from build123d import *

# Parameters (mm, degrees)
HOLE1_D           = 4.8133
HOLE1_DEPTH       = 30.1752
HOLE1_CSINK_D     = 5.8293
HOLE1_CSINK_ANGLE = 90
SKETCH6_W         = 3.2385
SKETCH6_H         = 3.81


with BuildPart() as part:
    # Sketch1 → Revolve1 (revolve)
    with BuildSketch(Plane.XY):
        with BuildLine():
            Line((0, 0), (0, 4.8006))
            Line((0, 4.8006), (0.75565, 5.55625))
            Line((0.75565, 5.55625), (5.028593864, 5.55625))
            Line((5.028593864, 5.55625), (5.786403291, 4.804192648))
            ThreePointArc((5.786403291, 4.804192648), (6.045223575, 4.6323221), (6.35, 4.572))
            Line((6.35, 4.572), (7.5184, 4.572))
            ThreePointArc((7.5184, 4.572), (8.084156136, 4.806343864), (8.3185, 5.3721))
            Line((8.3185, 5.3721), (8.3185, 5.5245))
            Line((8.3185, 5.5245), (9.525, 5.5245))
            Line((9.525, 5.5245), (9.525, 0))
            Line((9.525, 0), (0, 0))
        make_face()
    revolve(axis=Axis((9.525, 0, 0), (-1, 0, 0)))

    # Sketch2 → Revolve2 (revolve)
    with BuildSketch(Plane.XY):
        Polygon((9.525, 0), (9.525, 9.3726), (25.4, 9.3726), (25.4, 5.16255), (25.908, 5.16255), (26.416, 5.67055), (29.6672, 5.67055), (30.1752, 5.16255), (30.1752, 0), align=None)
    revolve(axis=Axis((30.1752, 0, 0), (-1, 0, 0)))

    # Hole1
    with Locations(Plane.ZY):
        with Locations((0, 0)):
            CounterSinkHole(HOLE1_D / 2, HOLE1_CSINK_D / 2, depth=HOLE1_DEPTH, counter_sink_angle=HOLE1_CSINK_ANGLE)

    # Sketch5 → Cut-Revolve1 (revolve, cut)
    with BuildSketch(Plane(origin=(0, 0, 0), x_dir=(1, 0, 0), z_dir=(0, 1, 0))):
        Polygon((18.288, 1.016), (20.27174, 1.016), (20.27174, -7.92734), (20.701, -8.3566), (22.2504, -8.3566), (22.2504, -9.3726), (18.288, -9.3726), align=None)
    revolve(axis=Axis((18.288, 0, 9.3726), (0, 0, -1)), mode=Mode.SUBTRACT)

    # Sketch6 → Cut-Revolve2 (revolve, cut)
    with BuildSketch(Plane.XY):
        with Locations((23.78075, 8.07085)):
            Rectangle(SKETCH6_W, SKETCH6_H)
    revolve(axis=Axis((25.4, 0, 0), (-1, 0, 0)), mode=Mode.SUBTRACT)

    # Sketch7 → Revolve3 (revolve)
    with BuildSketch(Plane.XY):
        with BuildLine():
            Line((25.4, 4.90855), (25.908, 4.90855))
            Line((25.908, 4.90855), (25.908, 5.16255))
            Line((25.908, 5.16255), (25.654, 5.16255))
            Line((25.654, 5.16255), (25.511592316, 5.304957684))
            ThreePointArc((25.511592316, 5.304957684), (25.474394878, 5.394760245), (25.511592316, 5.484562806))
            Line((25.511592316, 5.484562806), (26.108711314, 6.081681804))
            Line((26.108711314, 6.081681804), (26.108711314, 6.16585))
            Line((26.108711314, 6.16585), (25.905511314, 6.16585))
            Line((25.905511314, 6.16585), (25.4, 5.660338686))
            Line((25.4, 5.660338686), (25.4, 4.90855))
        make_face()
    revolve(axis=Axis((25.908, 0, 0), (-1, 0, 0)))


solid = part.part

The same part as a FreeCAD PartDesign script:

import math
import FreeCAD as App
import Part
import Sketcher
Q = App.Units.Quantity


def add_polygon(sketch, points):
    """Adds a closed chain of lines whose ends are joined by coincident constraints."""
    first, n = sketch.GeometryCount, len(points)
    for a, b in zip(points, points[1:] + points[:1]):
        sketch.addGeometry(Part.LineSegment(App.Vector(*a, 0), App.Vector(*b, 0)), False)
    for i in range(n):
        sketch.addConstraint(Sketcher.Constraint("Coincident", first + i, 2, first + (i + 1) % n, 1))

doc = App.newDocument("Part")
body = doc.addObject("PartDesign::Body", "Body")

sketch1 = body.newObject("Sketcher::SketchObject", "Sketch")
sketch1.AttachmentSupport = (doc.getObject("XY_Plane"), [""])
sketch1.MapMode = "FlatFace"
sketch1.addGeometry(Part.LineSegment(App.Vector(0, 4.8, 0), App.Vector(0, 0, 0)), False)
sketch1.addGeometry(Part.LineSegment(App.Vector(0, 0, 0), App.Vector(9.53, 0, 0)), False)
sketch1.addGeometry(Part.LineSegment(App.Vector(9.53, 0, 0), App.Vector(9.53, 5.52, 0)), False)
sketch1.addGeometry(Part.LineSegment(App.Vector(9.53, 5.52, 0), App.Vector(8.32, 5.52, 0)), False)
sketch1.addGeometry(Part.LineSegment(App.Vector(8.32, 5.52, 0), App.Vector(8.32, 5.37, 0)), False)
sketch1.addGeometry(Part.ArcOfCircle(Part.Circle(App.Vector(7.52, 5.37, 0), App.Vector(0, 0, 1), 0.8), math.radians(-90), math.radians(0)), False)
sketch1.addGeometry(Part.LineSegment(App.Vector(7.52, 4.57, 0), App.Vector(6.35, 4.57, 0)), False)
sketch1.addGeometry(Part.ArcOfCircle(Part.Circle(App.Vector(6.35, 5.37, 0), App.Vector(0, 0, 1), 0.8), math.radians(-135), math.radians(-90)), False)
sketch1.addGeometry(Part.LineSegment(App.Vector(5.79, 4.8, 0), App.Vector(5.03, 5.56, 0)), False)
sketch1.addGeometry(Part.LineSegment(App.Vector(5.03, 5.56, 0), App.Vector(0.76, 5.56, 0)), False)
sketch1.addGeometry(Part.LineSegment(App.Vector(0.76, 5.56, 0), App.Vector(0, 4.8, 0)), False)
sketch1.addConstraint(Sketcher.Constraint("Coincident", 0, 2, 1, 1))
sketch1.addConstraint(Sketcher.Constraint("Coincident", 1, 2, 2, 1))
sketch1.addConstraint(Sketcher.Constraint("Coincident", 2, 2, 3, 1))
sketch1.addConstraint(Sketcher.Constraint("Coincident", 3, 2, 4, 1))
sketch1.addConstraint(Sketcher.Constraint("Tangent", 4, 2, 5, 2))
sketch1.addConstraint(Sketcher.Constraint("Tangent", 5, 1, 6, 1))
sketch1.addConstraint(Sketcher.Constraint("Tangent", 6, 2, 7, 2))
sketch1.addConstraint(Sketcher.Constraint("Tangent", 7, 1, 8, 1))
sketch1.addConstraint(Sketcher.Constraint("Coincident", 8, 2, 9, 1))
sketch1.addConstraint(Sketcher.Constraint("Coincident", 9, 2, 10, 1))
sketch1.addConstraint(Sketcher.Constraint("Coincident", 10, 2, 0, 1))
sketch1.addConstraint(Sketcher.Constraint("Vertical", 0))
sketch1.addConstraint(Sketcher.Constraint("Horizontal", 1))
sketch1.addConstraint(Sketcher.Constraint("Vertical", 2))
sketch1.addConstraint(Sketcher.Constraint("Horizontal", 3))
sketch1.addConstraint(Sketcher.Constraint("Vertical", 4))
sketch1.addConstraint(Sketcher.Constraint("Horizontal", 6))
sketch1.addConstraint(Sketcher.Constraint("Horizontal", 9))
sketch1.addConstraint(Sketcher.Constraint("Coincident", 0, 2, -1, 1))
sketch1.addConstraint(Sketcher.Constraint("Equal", 5, 7))
sketch1.addConstraint(Sketcher.Constraint("Angle", 10, Q("-135 deg")))
sketch1.addConstraint(Sketcher.Constraint("Radius", 5, Q("0.0315 in")))
sketch1.addConstraint(Sketcher.Constraint("DistanceX", 1, 1, 1, 2, Q("0.375 in")))
sketch1.addConstraint(Sketcher.Constraint("DistanceX", 6, 2, 6, 1, Q("0.046 in")))
sketch1.addConstraint(Sketcher.Constraint("DistanceY", 0, 2, 0, 1, Q("0.189 in")))
sketch1.addConstraint(Sketcher.Constraint("DistanceY", 4, 2, 4, 1, Q("0.006 in")))
sketch1.addConstraint(Sketcher.Constraint("DistanceX", -1, 1, 7, 3, Q("0.25 in")))
sketch1.addConstraint(Sketcher.Constraint("DistanceY", -1, 1, 5, 1, Q("0.18 in")))
sketch1.addConstraint(Sketcher.Constraint("DistanceY", -1, 1, 8, 2, Q("0.21875 in")))
sketch1.addConstraint(Sketcher.Constraint("DistanceX", 9, 2, 9, 1, 4.272944))
revolution = body.newObject("PartDesign::Revolution", "Revolution")
revolution.Profile = sketch1
revolution.ReferenceAxis = (sketch1, ["H_Axis"])
revolution.Angle = 360

sketch2 = body.newObject("Sketcher::SketchObject", "Sketch001")
sketch2.AttachmentSupport = (doc.getObject("XY_Plane"), [""])
sketch2.MapMode = "FlatFace"
add_polygon(sketch2, [(9.5, 9.4), (9.5, 0), (30.2, 0), (30.2, 5.2), (29.7, 5.7), (26.4, 5.7), (25.9, 5.2), (25.4, 5.2), (25.4, 9.4)])
sketch2.addConstraint(Sketcher.Constraint("Vertical", 0))
sketch2.addConstraint(Sketcher.Constraint("Horizontal", 1))
sketch2.addConstraint(Sketcher.Constraint("Vertical", 2))
sketch2.addConstraint(Sketcher.Constraint("Horizontal", 4))
sketch2.addConstraint(Sketcher.Constraint("Horizontal", 6))
sketch2.addConstraint(Sketcher.Constraint("Vertical", 7))
sketch2.addConstraint(Sketcher.Constraint("Horizontal", 8))
sketch2.addConstraint(Sketcher.Constraint("PointOnObject", 0, 2, -1))
sketch2.addConstraint(Sketcher.Constraint("Perpendicular", 3, 5))
sketch2.addConstraint(Sketcher.Constraint("Horizontal", 2, 2, 5, 2))
sketch2.addConstraint(Sketcher.Constraint("Equal", 3, 5))
sketch2.addConstraint(Sketcher.Constraint("DistanceX", -1, 1, 6, 2, Q("1 in")))
sketch2.addConstraint(Sketcher.Constraint("DistanceX", 6, 2, 6, 1, Q("0.02 in")))
sketch2.addConstraint(Sketcher.Constraint("DistanceX", 1, 1, 1, 2, Q("0.813 in")))
sketch2.addConstraint(Sketcher.Constraint("DistanceX", 4, 2, 4, 1, Q("0.128 in")))
sketch2.addConstraint(Sketcher.Constraint("DistanceX", 8, 2, 8, 1, Q("0.625 in")))
sketch2.addConstraint(Sketcher.Constraint("DistanceY", 0, 2, 0, 1, Q("0.369 in")))
sketch2.addConstraint(Sketcher.Constraint("DistanceY", 2, 1, 2, 2, 5.16255))
revolution2 = body.newObject("PartDesign::Revolution", "Revolution001")
revolution2.Profile = sketch2
revolution2.ReferenceAxis = (sketch2, ["H_Axis"])
revolution2.Angle = 360

sketch3 = body.newObject("Sketcher::SketchObject", "Sketch002")
sketch3.AttachmentSupport = (doc.getObject("YZ_Plane"), [""])
sketch3.MapMode = "FlatFace"
sketch3.addGeometry(Part.Circle(App.Vector(0, 0, 0), App.Vector(0, 0, 1), 2.4), False)
sketch3.addConstraint(Sketcher.Constraint("Coincident", 0, 3, -1, 1))
sketch3.addConstraint(Sketcher.Constraint("Diameter", 0, Q("0.1895 in")))
doc.recompute()
hole = body.newObject("PartDesign::Hole", "Hole")
hole.Profile = sketch3
hole.ThreadType = "None"
hole.Diameter = Q("0.1895 in")
hole.DepthType = "Dimension"
hole.Depth = Q("1.188 in")
hole.DrillPoint = "Flat"
hole.HoleCutType = "Countersink"
hole.HoleCutDiameter = Q("0.2295 in")
hole.HoleCutCountersinkAngle = 90
hole.Reversed = True

sketch4 = body.newObject("Sketcher::SketchObject", "Sketch003")
sketch4.AttachmentSupport = (doc.getObject("XZ_Plane"), [""])
sketch4.MapMode = "FlatFace"
add_polygon(sketch4, [(20.3, -1), (18.3, -1), (18.3, 9.4), (22.3, 9.4), (22.3, 8.4), (20.7, 8.4), (20.3, 7.9)])
sketch4.addGeometry(Part.LineSegment(App.Vector(18.3, 9.4, 0), App.Vector(18.3, -1, 0)), True)
sketch4.addConstraint(Sketcher.Constraint("Horizontal", 0))
sketch4.addConstraint(Sketcher.Constraint("Vertical", 1))
sketch4.addConstraint(Sketcher.Constraint("Horizontal", 2))
sketch4.addConstraint(Sketcher.Constraint("Vertical", 3))
sketch4.addConstraint(Sketcher.Constraint("Horizontal", 4))
sketch4.addConstraint(Sketcher.Constraint("Vertical", 6))
sketch4.addConstraint(Sketcher.Constraint("Vertical", 7))
sketch4.addConstraint(Sketcher.Constraint("Coincident", 7, 1, 1, 2))
sketch4.addConstraint(Sketcher.Constraint("Horizontal", 6, 2, 7, 2))
sketch4.addConstraint(Sketcher.Constraint("Angle", 5, Q("-135 deg")))
sketch4.addConstraint(Sketcher.Constraint("DistanceY", 3, 2, 3, 1, Q("0.04 in")))
sketch4.addConstraint(Sketcher.Constraint("DistanceX", 2, 1, 2, 2, Q("0.156 in")))
sketch4.addConstraint(Sketcher.Constraint("DistanceX", 4, 2, 4, 1, Q("0.061 in")))
sketch4.addConstraint(Sketcher.Constraint("DistanceY", 1, 1, 1, 2, Q("0.409 in")))
sketch4.addConstraint(Sketcher.Constraint("DistanceX", -1, 1, 0, 2, Q("0.72 in")))
sketch4.addConstraint(Sketcher.Constraint("DistanceY", 0, 2, -1, 1, Q("0.04 in")))
sketch4.addConstraint(Sketcher.Constraint("DistanceX", 0, 2, 0, 1, Q("0.0781 in")))
groove = body.newObject("PartDesign::Groove", "Groove")
groove.Profile = sketch4
groove.ReferenceAxis = (sketch4, ["Axis0"])
groove.Angle = 360

sketch5 = body.newObject("Sketcher::SketchObject", "Sketch004")
sketch5.AttachmentSupport = (doc.getObject("XY_Plane"), [""])
sketch5.MapMode = "FlatFace"
add_polygon(sketch5, [(22.2, 10), (22.2, 6.2), (25.4, 6.2), (25.4, 10)])
sketch5.addConstraint(Sketcher.Constraint("Vertical", 0))
sketch5.addConstraint(Sketcher.Constraint("Horizontal", 1))
sketch5.addConstraint(Sketcher.Constraint("Vertical", 2))
sketch5.addConstraint(Sketcher.Constraint("Horizontal", 3))
sketch5.addConstraint(Sketcher.Constraint("DistanceX", -1, 1, 1, 2, Q("1 in")))
sketch5.addConstraint(Sketcher.Constraint("DistanceY", 0, 2, 0, 1, Q("0.15 in")))
sketch5.addConstraint(Sketcher.Constraint("DistanceX", 1, 1, 1, 2, Q("0.1275 in")))
sketch5.addConstraint(Sketcher.Constraint("DistanceY", -1, 1, 0, 2, 6.16585))
groove2 = body.newObject("PartDesign::Groove", "Groove001")
groove2.Profile = sketch5
groove2.ReferenceAxis = (sketch5, ["H_Axis"])
groove2.Angle = 360

sketch6 = body.newObject("Sketcher::SketchObject", "Sketch005")
sketch6.AttachmentSupport = (doc.getObject("XY_Plane"), [""])
sketch6.MapMode = "FlatFace"
sketch6.addGeometry(Part.LineSegment(App.Vector(25.4, 4.91, 0), App.Vector(25.91, 4.91, 0)), False)
sketch6.addGeometry(Part.LineSegment(App.Vector(25.91, 4.91, 0), App.Vector(25.91, 5.16, 0)), False)
sketch6.addGeometry(Part.LineSegment(App.Vector(25.91, 5.16, 0), App.Vector(25.65, 5.16, 0)), False)
sketch6.addGeometry(Part.LineSegment(App.Vector(25.65, 5.16, 0), App.Vector(25.51, 5.3, 0)), False)
sketch6.addGeometry(Part.ArcOfCircle(Part.Circle(App.Vector(25.6, 5.39, 0), App.Vector(0, 0, 1), 0.13), math.radians(135), math.radians(225)), False)
sketch6.addGeometry(Part.LineSegment(App.Vector(25.51, 5.48, 0), App.Vector(26.11, 6.08, 0)), False)
sketch6.addGeometry(Part.LineSegment(App.Vector(26.11, 6.08, 0), App.Vector(26.11, 6.17, 0)), False)
sketch6.addGeometry(Part.LineSegment(App.Vector(26.11, 6.17, 0), App.Vector(25.91, 6.17, 0)), False)
sketch6.addGeometry(Part.LineSegment(App.Vector(25.91, 6.17, 0), App.Vector(25.4, 5.66, 0)), False)
sketch6.addGeometry(Part.LineSegment(App.Vector(25.4, 5.66, 0), App.Vector(25.4, 4.91, 0)), False)
sketch6.addConstraint(Sketcher.Constraint("Coincident", 0, 2, 1, 1))
sketch6.addConstraint(Sketcher.Constraint("Coincident", 1, 2, 2, 1))
sketch6.addConstraint(Sketcher.Constraint("Coincident", 2, 2, 3, 1))
sketch6.addConstraint(Sketcher.Constraint("Tangent", 3, 2, 4, 2))
sketch6.addConstraint(Sketcher.Constraint("Tangent", 4, 1, 5, 1))
sketch6.addConstraint(Sketcher.Constraint("Coincident", 5, 2, 6, 1))
sketch6.addConstraint(Sketcher.Constraint("Coincident", 6, 2, 7, 1))
sketch6.addConstraint(Sketcher.Constraint("Coincident", 7, 2, 8, 1))
sketch6.addConstraint(Sketcher.Constraint("Coincident", 8, 2, 9, 1))
sketch6.addConstraint(Sketcher.Constraint("Coincident", 9, 2, 0, 1))
sketch6.addConstraint(Sketcher.Constraint("Horizontal", 0))
sketch6.addConstraint(Sketcher.Constraint("Vertical", 1))
sketch6.addConstraint(Sketcher.Constraint("Horizontal", 2))
sketch6.addConstraint(Sketcher.Constraint("Vertical", 6))
sketch6.addConstraint(Sketcher.Constraint("Horizontal", 7))
sketch6.addConstraint(Sketcher.Constraint("Vertical", 9))
sketch6.addConstraint(Sketcher.Constraint("Perpendicular", 3, 5))
sketch6.addConstraint(Sketcher.Constraint("Parallel", 5, 8))
sketch6.addConstraint(Sketcher.Constraint("Vertical", 3, 2, 4, 1))
sketch6.addConstraint(Sketcher.Constraint("Equal", 2, 1))
sketch6.addConstraint(Sketcher.Constraint("DistanceX", -1, 1, 8, 2, Q("1 in")))
sketch6.addConstraint(Sketcher.Constraint("Radius", 4, Q("0.005 in")))
sketch6.addConstraint(Sketcher.Constraint("DistanceX", 0, 1, 0, 2, Q("0.02 in")))
sketch6.addConstraint(Sketcher.Constraint("DistanceX", 2, 2, 2, 1, Q("0.01 in")))
sketch6.addConstraint(Sketcher.Constraint("DistanceX", 7, 2, 7, 1, Q("0.008 in")))
sketch6.addConstraint(Sketcher.Constraint("DistanceY", 1, 2, 6, 2, Q("0.0395 in")))
sketch6.addConstraint(Sketcher.Constraint("Distance", 8, 0.714901))
sketch6.addConstraint(Sketcher.Constraint("DistanceY", 6, 1, 6, 2, 0.084168))
sketch6.addConstraint(Sketcher.Constraint("DistanceY", -1, 1, 4, 3, 5.39476))
revolution3 = body.newObject("PartDesign::Revolution", "Revolution002")
revolution3.Profile = sketch6
revolution3.ReferenceAxis = (sketch6, ["H_Axis"])
revolution3.Angle = 360

doc.recompute()
